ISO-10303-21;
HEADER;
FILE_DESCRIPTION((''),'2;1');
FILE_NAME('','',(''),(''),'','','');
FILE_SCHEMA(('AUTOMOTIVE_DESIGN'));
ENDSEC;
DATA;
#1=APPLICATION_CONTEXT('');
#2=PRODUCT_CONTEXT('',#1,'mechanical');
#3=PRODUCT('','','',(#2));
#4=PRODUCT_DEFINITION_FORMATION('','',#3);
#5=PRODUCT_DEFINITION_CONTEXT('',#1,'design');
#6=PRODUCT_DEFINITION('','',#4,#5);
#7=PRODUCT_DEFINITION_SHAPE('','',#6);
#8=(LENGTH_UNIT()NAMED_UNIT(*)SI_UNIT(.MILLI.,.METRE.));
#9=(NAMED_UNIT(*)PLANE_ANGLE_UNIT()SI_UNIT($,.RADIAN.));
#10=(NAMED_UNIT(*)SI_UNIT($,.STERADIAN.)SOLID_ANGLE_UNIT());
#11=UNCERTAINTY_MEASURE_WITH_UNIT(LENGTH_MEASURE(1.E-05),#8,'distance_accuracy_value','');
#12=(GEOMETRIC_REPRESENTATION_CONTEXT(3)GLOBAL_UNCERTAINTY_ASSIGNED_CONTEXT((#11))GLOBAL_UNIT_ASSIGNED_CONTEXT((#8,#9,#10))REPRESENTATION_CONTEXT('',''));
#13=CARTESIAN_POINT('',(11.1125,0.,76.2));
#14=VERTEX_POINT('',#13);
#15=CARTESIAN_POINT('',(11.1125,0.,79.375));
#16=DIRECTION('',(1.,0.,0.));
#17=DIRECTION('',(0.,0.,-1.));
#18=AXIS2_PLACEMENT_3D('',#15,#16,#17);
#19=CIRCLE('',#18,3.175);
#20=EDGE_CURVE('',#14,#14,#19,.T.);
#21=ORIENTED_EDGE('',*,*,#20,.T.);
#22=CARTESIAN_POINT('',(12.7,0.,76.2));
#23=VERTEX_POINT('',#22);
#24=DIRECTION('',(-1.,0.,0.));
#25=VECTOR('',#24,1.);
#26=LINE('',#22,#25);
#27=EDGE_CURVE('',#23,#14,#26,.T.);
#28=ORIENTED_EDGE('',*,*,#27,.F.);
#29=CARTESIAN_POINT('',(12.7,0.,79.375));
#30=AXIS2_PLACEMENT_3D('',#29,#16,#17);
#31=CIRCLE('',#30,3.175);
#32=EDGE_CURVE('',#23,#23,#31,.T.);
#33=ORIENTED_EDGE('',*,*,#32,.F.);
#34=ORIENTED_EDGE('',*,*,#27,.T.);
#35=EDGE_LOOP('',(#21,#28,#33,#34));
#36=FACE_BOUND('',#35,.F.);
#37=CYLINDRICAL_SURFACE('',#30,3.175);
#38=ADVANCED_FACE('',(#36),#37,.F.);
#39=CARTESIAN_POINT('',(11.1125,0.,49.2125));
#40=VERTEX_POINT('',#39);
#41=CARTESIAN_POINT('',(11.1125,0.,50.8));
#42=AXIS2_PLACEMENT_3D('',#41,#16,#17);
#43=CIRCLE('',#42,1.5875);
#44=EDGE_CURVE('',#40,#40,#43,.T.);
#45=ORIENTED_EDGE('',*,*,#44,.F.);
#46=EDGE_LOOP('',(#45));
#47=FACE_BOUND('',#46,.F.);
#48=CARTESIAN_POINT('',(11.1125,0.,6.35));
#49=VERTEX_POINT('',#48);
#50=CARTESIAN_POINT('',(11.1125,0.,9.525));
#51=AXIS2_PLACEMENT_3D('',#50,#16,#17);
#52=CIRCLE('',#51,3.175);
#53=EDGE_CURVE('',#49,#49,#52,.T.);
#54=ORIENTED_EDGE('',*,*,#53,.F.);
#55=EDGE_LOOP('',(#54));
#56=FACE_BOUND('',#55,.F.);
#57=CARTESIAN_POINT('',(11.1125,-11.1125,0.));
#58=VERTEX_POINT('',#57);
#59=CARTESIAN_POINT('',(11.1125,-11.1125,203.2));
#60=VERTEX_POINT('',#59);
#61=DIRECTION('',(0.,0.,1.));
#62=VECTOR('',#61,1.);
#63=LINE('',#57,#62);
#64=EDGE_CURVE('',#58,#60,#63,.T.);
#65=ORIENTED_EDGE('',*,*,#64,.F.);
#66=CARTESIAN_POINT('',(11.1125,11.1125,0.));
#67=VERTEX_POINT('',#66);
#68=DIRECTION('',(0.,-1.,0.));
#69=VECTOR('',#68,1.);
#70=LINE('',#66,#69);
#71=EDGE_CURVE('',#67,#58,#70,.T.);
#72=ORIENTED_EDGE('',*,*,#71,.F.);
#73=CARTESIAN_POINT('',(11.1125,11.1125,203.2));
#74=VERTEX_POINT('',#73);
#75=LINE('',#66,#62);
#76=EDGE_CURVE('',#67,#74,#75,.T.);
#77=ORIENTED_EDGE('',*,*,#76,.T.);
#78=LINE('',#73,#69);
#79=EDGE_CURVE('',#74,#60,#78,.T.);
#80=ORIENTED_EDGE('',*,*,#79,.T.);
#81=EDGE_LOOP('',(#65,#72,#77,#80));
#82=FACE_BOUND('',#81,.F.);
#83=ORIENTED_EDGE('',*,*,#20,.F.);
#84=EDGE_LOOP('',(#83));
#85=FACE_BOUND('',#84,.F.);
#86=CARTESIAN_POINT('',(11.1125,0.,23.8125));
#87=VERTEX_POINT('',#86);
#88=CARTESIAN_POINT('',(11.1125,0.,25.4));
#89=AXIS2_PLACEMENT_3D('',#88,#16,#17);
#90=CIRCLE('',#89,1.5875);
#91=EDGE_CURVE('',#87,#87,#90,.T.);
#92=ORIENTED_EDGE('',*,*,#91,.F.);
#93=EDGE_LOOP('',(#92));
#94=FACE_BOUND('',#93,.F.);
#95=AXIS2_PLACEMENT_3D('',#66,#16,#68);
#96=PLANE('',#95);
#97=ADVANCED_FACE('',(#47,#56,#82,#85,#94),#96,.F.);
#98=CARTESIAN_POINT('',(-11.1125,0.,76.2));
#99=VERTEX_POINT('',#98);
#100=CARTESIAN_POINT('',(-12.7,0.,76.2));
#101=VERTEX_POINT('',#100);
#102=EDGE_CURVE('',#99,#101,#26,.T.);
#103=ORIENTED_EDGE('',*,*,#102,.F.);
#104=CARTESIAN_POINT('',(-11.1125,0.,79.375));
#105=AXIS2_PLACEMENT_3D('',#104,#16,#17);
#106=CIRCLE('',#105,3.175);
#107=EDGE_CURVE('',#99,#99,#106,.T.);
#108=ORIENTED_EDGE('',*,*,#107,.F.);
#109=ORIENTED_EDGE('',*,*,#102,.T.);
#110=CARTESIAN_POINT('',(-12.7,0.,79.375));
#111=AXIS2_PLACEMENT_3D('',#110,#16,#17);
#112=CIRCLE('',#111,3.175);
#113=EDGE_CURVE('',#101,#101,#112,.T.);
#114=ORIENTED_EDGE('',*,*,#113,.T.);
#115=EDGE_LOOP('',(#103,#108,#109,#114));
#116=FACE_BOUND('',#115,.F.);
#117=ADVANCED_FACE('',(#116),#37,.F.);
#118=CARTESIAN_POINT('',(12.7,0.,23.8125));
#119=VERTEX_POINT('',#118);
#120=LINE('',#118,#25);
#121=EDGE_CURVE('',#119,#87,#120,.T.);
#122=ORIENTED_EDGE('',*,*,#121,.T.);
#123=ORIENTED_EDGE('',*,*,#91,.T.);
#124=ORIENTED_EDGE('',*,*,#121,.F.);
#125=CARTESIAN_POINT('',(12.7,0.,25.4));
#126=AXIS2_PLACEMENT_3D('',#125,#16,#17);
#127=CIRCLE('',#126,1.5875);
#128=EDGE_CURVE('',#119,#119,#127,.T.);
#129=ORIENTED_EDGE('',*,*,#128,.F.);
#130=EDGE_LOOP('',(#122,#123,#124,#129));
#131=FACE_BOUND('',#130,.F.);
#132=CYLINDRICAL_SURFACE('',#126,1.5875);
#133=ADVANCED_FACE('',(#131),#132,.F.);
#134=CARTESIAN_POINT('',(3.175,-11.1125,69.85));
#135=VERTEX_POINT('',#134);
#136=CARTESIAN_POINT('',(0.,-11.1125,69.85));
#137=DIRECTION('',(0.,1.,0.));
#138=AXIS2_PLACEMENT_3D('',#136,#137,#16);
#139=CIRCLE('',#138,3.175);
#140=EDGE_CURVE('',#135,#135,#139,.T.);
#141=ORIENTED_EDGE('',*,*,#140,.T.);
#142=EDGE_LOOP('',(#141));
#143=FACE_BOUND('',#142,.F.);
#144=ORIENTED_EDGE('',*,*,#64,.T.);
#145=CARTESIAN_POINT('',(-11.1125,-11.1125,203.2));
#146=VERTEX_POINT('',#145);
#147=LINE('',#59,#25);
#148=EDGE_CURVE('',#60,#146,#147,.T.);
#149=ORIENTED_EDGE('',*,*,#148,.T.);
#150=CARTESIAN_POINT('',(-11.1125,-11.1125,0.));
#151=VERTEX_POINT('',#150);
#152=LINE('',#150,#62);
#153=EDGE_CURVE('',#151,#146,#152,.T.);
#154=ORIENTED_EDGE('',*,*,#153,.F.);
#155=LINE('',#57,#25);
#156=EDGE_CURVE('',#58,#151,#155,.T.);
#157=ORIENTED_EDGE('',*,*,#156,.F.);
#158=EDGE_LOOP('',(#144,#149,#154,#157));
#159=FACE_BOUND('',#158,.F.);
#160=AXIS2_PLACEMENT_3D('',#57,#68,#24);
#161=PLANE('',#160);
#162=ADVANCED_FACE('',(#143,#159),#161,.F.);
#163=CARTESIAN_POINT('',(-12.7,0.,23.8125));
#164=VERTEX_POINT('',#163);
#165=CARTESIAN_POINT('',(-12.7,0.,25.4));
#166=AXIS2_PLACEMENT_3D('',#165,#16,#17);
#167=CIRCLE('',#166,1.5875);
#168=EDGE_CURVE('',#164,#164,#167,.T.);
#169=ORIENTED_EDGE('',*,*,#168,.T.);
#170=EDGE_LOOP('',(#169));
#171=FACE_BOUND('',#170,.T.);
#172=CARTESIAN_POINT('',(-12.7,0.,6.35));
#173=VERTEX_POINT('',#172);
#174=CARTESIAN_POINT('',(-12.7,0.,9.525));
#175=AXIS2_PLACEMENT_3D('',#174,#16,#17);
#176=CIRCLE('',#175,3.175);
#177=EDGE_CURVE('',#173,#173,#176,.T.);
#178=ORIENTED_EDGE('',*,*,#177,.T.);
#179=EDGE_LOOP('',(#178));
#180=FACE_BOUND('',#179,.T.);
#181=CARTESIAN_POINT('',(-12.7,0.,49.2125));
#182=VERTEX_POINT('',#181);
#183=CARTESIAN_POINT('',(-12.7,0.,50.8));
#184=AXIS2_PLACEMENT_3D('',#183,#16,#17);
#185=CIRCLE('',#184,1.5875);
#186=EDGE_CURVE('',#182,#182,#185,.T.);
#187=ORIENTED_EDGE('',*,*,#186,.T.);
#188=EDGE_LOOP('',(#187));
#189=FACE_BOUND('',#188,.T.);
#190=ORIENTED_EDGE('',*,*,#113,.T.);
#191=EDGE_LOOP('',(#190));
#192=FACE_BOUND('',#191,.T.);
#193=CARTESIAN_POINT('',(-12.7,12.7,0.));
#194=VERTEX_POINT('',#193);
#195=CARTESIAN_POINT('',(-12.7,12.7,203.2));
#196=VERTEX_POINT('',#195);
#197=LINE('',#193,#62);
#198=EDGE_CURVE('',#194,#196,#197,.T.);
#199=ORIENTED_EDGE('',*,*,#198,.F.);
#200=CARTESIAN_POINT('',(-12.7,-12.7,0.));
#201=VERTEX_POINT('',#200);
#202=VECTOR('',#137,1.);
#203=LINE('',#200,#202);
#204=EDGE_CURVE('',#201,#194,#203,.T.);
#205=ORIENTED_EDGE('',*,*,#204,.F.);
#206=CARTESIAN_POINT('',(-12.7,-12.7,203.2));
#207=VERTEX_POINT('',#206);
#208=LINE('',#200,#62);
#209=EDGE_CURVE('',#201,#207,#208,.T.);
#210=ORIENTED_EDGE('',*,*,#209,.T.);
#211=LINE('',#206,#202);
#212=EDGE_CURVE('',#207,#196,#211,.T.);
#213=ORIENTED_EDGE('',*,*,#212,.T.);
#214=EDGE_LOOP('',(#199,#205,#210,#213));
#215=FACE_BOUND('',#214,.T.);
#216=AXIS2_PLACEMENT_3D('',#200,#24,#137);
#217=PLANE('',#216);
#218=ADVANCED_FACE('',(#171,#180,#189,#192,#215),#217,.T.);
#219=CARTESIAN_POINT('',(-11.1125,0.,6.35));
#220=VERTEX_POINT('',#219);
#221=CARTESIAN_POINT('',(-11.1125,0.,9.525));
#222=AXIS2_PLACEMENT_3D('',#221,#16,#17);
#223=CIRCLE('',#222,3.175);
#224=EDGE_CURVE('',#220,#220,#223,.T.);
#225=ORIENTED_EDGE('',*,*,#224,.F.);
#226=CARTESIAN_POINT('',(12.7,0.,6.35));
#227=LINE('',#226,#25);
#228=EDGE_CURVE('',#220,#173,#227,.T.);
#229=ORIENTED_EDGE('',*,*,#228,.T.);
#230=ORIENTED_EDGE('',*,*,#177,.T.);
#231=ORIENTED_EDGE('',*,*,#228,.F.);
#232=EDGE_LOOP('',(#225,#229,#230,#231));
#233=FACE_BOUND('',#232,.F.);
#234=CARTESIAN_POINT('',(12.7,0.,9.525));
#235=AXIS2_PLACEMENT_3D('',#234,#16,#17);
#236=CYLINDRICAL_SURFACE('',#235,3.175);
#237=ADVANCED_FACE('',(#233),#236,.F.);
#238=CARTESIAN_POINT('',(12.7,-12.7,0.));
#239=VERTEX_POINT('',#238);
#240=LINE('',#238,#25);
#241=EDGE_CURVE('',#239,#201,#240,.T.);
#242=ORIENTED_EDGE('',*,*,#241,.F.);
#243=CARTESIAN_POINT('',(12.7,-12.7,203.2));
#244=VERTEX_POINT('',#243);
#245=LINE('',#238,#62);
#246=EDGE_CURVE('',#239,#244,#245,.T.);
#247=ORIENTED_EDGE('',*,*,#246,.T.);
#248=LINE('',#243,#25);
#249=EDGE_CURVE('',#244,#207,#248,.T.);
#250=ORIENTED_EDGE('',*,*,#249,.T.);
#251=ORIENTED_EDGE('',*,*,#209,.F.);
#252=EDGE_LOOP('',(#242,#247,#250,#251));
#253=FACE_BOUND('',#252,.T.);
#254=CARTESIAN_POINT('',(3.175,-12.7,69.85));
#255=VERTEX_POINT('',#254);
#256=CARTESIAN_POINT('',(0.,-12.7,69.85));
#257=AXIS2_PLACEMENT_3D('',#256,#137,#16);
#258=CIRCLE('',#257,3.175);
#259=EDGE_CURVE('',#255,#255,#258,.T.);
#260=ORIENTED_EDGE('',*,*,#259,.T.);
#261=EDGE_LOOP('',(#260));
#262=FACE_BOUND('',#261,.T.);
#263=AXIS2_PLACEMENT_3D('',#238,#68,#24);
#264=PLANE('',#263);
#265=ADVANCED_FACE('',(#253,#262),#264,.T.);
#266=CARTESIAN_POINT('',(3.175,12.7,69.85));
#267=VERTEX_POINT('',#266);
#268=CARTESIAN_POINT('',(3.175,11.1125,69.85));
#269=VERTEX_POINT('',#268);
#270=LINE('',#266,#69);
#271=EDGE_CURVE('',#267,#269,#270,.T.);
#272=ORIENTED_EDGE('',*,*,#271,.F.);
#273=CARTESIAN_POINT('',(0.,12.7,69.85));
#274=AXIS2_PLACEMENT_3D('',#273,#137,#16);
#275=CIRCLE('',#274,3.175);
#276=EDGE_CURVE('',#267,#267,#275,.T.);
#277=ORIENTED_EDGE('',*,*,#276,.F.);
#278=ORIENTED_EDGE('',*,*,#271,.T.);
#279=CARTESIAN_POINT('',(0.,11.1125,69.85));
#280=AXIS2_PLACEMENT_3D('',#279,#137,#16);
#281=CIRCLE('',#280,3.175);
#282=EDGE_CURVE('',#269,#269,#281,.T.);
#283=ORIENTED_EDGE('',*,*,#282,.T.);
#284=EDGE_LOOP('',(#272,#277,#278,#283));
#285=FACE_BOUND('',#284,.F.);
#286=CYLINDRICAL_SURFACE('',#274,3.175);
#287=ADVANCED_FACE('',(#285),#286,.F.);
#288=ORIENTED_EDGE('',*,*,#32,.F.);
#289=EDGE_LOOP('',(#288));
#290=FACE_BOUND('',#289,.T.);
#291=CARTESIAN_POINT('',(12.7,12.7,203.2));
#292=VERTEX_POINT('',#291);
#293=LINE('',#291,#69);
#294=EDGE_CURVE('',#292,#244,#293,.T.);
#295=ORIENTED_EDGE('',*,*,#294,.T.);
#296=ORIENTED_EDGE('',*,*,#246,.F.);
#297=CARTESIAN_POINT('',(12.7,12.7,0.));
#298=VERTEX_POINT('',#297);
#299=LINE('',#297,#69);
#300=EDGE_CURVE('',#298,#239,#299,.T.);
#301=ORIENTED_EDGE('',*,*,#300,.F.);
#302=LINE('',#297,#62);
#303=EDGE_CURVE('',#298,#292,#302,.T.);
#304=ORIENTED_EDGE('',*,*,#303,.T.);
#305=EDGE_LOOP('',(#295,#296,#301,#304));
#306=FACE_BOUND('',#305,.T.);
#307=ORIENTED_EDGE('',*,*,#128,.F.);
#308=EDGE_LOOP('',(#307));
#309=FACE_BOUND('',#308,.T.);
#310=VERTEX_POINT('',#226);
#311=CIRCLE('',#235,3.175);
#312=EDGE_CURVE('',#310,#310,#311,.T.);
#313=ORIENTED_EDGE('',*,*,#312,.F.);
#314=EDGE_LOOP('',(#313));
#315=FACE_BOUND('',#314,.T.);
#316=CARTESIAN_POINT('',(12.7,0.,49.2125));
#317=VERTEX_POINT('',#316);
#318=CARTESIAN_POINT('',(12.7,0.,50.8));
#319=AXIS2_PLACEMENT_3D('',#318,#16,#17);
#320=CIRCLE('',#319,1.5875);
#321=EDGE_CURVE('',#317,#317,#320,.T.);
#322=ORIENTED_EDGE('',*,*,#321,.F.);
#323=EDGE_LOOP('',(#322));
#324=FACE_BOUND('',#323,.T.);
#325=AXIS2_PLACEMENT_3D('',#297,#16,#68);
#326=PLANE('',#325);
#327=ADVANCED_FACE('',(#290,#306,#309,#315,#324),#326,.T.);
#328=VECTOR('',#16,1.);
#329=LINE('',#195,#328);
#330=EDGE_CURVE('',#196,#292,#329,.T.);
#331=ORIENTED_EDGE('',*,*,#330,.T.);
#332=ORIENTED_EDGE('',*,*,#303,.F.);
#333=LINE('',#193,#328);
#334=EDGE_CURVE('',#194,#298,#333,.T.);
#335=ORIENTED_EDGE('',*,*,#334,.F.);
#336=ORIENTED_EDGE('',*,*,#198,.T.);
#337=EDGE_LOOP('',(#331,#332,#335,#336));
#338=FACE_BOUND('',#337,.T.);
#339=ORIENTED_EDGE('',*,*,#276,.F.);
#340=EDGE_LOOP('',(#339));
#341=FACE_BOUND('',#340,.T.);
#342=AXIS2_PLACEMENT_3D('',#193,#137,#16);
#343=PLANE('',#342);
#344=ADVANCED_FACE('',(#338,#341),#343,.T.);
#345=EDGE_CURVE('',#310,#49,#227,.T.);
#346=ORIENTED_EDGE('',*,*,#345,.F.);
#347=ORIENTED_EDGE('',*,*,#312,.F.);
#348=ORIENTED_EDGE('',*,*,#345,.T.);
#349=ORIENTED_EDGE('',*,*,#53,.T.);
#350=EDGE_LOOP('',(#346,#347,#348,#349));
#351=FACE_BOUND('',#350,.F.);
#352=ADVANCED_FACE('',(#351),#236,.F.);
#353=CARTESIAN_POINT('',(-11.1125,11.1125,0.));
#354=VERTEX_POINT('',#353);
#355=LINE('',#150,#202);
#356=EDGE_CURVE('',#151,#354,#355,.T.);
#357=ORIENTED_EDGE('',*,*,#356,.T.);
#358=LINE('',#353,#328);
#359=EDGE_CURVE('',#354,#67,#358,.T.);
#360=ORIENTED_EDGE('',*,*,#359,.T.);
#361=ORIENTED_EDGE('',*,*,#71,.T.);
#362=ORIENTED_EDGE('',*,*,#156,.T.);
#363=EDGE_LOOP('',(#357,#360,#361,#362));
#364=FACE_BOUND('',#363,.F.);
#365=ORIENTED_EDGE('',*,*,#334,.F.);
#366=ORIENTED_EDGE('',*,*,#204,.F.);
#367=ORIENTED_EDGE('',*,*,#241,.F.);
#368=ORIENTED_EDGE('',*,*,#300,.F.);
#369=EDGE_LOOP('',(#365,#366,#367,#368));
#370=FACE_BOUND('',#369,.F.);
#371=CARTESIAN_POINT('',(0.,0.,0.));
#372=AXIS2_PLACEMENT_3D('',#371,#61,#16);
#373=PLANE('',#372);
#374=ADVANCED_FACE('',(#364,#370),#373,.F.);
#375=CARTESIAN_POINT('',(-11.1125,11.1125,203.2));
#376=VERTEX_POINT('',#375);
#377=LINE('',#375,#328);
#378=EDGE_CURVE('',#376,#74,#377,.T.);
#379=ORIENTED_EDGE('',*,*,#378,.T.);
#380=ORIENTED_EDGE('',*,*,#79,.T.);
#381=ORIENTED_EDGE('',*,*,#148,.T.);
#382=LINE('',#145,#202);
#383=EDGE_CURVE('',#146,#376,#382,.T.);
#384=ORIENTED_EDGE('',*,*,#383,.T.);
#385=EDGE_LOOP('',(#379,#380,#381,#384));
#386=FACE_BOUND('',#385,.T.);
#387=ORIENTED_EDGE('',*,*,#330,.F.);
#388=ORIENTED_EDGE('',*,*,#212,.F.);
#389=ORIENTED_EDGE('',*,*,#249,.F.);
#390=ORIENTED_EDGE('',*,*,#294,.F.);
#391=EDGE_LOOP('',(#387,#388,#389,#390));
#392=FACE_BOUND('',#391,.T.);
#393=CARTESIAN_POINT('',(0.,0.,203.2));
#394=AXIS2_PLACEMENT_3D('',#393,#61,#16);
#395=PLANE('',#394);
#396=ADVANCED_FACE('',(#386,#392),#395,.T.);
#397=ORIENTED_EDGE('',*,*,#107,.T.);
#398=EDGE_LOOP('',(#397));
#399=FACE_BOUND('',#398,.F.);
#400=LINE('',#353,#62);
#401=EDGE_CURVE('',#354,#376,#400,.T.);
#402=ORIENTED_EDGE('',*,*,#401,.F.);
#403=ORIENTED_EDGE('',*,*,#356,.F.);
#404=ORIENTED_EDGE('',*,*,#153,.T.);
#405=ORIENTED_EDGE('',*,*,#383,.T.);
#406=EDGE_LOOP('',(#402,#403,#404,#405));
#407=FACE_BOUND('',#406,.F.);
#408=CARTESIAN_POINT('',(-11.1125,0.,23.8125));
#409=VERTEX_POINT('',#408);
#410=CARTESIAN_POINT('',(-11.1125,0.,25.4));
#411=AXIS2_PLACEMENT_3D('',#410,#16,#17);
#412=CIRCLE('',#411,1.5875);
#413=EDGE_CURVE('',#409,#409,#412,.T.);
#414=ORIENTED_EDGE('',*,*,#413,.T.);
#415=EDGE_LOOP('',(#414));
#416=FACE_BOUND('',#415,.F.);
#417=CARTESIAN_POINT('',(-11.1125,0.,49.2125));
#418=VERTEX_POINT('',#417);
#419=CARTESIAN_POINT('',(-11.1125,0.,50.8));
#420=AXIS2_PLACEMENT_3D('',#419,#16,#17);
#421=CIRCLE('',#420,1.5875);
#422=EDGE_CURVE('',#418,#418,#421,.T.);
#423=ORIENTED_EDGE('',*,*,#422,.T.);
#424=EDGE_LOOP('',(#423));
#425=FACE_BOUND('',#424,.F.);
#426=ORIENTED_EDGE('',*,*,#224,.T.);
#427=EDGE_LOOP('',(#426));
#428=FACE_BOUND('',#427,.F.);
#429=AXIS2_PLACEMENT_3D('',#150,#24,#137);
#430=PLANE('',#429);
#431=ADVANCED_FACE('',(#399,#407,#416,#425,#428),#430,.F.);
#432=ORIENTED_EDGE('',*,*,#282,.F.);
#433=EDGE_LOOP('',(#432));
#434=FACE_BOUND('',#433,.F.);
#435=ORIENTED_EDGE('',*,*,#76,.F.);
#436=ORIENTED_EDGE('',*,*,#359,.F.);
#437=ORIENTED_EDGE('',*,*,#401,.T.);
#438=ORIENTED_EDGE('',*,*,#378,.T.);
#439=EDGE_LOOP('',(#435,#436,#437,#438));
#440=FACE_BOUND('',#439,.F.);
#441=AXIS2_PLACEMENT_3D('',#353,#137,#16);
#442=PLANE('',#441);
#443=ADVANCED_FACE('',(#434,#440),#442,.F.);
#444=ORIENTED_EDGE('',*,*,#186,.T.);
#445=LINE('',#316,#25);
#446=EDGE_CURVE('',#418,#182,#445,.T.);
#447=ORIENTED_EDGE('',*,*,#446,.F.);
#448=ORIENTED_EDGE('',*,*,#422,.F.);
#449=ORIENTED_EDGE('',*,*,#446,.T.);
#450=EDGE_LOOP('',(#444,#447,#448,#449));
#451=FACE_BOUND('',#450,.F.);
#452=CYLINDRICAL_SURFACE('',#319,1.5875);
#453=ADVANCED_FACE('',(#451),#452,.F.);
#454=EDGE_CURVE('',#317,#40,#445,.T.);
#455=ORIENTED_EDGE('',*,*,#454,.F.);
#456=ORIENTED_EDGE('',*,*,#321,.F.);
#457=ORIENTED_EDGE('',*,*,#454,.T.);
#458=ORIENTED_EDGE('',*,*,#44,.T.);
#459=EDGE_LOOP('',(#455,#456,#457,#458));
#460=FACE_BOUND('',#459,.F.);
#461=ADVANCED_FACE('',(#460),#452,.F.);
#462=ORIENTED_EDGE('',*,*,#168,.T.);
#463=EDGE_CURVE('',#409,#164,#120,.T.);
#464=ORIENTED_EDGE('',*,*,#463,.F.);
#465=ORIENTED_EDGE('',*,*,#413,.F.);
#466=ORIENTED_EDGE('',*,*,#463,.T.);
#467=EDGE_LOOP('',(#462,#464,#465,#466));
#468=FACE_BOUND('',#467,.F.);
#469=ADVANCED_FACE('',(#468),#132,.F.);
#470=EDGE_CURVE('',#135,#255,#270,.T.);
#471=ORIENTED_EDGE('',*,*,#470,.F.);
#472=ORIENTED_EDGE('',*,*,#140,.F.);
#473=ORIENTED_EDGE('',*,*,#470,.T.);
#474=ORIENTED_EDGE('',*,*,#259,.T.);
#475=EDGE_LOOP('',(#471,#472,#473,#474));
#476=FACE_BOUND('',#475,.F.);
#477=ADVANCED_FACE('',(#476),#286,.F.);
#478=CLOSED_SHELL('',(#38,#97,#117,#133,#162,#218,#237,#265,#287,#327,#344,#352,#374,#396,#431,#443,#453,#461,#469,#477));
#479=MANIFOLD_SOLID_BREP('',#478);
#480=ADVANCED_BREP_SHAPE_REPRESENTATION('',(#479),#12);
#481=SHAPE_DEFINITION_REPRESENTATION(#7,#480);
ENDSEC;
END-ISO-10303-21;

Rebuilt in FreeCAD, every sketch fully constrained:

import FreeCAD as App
import Part
import Sketcher

V = App.Vector
Q = App.Units.Quantity

doc = App.newDocument("Part")
body = doc.addObject("PartDesign::Body", "Body")

sketch1 = body.newObject("Sketcher::SketchObject", "Sketch")
sketch1.AttachmentSupport = (doc.getObject("XY_Plane"), [""])
sketch1.MapMode = "FlatFace"
sketch1.addGeometry([
    Part.LineSegment(V(13, 13, 0), V(-13, 13, 0)),
    Part.LineSegment(V(-13, 13, 0), V(-13, -13, 0)),
    Part.LineSegment(V(-13, -13, 0), V(13, -13, 0)),
    Part.LineSegment(V(13, -13, 0), V(13, 13, 0)),
    Part.LineSegment(V(-11, -11, 0), V(-11, 11, 0)),
    Part.LineSegment(V(-11, 11, 0), V(11, 11, 0)),
    Part.LineSegment(V(11, 11, 0), V(11, -11, 0)),
    Part.LineSegment(V(11, -11, 0), V(-11, -11, 0)),
], False)
sketch1.addConstraint([
    Sketcher.Constraint("Coincident", 0, 2, 1, 1),
    Sketcher.Constraint("Coincident", 1, 2, 2, 1),
    Sketcher.Constraint("Coincident", 2, 2, 3, 1),
    Sketcher.Constraint("Coincident", 3, 2, 0, 1),
    Sketcher.Constraint("Coincident", 4, 2, 5, 1),
    Sketcher.Constraint("Coincident", 5, 2, 6, 1),
    Sketcher.Constraint("Coincident", 6, 2, 7, 1),
    Sketcher.Constraint("Coincident", 7, 2, 4, 1),
    Sketcher.Constraint("Horizontal", 0),
    Sketcher.Constraint("Vertical", 1),
    Sketcher.Constraint("Horizontal", 2),
    Sketcher.Constraint("Vertical", 3),
    Sketcher.Constraint("Vertical", 4),
    Sketcher.Constraint("Horizontal", 5),
    Sketcher.Constraint("Vertical", 6),
    Sketcher.Constraint("Horizontal", 7),
    Sketcher.Constraint("Symmetric", 0, 2, 2, 2, -1, 1),
    Sketcher.Constraint("Symmetric", 4, 2, 6, 2, -1, 1),
    Sketcher.Constraint("Equal", 2, 1),
    Sketcher.Constraint("Equal", 7, 4),
    Sketcher.Constraint("DistanceX", 0, 2, 0, 1, Q("1 in")),
    Sketcher.Constraint("DistanceX", 0, 2, 4, 2, Q("0.0625 in")),
])
pad1 = body.newObject("PartDesign::Pad", "Pad")
pad1.Profile = sketch1
pad1.Length = Q("8 in")

sketch2 = body.newObject("Sketcher::SketchObject", "Sketch001")
sketch2.AttachmentSupport = (doc.getObject("XZ_Plane"), [""])
sketch2.MapMode = "FlatFace"
sketch2.AttachmentOffset = App.Placement(V(0, 0, -0.5 * 25.4), App.Rotation())
sketch2.addGeometry(Part.Circle(V(0, 69.8, 0), V(0, 0, 1), 3.2), False)
sketch2.addConstraint([
    Sketcher.Constraint("PointOnObject", 0, 3, -2),
    Sketcher.Constraint("Diameter", 0, Q("0.25 in")),
    Sketcher.Constraint("DistanceY", -1, 1, 0, 3, Q("2.75 in")),
])
pocket1 = body.newObject("PartDesign::Pocket", "Pocket")
pocket1.Profile = sketch2
pocket1.Type = "ThroughAll"
pocket1.Reversed = True

sketch3 = body.newObject("Sketcher::SketchObject", "Sketch002")
sketch3.AttachmentSupport = (doc.getObject("YZ_Plane"), [""])
sketch3.MapMode = "FlatFace"
sketch3.AttachmentOffset = App.Placement(V(0, 0, 0.5 * 25.4), App.Rotation())
sketch3.addGeometry([
    Part.Circle(V(0, 79.4, 0), V(0, 0, 1), 3.2),
    Part.Circle(V(0, 9.5, 0), V(0, 0, 1), 3.2),
    Part.Circle(V(0, 50.8, 0), V(0, 0, 1), 1.6),
    Part.Circle(V(0, 25.4, 0), V(0, 0, 1), 1.6),
], False)
sketch3.addConstraint([
    Sketcher.Constraint("Equal", 0, 1),
    Sketcher.Constraint("Equal", 2, 3),
    Sketcher.Constraint("PointOnObject", 0, 3, -2),
    Sketcher.Constraint("PointOnObject", 1, 3, -2),
    Sketcher.Constraint("PointOnObject", 2, 3, -2),
    Sketcher.Constraint("PointOnObject", 3, 3, -2),
    Sketcher.Constraint("Diameter", 0, Q("0.25 in")),
    Sketcher.Constraint("Diameter", 2, Q("0.125 in")),
    Sketcher.Constraint("DistanceY", -1, 1, 3, 3, Q("1 in")),
    Sketcher.Constraint("DistanceY", 3, 3, 2, 3, Q("1 in")),
    Sketcher.Constraint("DistanceY", -1, 1, 0, 3, Q("3.125 in")),
    Sketcher.Constraint("DistanceY", -1, 1, 1, 3, Q("0.375 in")),
])
pocket2 = body.newObject("PartDesign::Pocket", "Pocket001")
pocket2.Profile = sketch3
pocket2.Type = "ThroughAll"

doc.recompute()
